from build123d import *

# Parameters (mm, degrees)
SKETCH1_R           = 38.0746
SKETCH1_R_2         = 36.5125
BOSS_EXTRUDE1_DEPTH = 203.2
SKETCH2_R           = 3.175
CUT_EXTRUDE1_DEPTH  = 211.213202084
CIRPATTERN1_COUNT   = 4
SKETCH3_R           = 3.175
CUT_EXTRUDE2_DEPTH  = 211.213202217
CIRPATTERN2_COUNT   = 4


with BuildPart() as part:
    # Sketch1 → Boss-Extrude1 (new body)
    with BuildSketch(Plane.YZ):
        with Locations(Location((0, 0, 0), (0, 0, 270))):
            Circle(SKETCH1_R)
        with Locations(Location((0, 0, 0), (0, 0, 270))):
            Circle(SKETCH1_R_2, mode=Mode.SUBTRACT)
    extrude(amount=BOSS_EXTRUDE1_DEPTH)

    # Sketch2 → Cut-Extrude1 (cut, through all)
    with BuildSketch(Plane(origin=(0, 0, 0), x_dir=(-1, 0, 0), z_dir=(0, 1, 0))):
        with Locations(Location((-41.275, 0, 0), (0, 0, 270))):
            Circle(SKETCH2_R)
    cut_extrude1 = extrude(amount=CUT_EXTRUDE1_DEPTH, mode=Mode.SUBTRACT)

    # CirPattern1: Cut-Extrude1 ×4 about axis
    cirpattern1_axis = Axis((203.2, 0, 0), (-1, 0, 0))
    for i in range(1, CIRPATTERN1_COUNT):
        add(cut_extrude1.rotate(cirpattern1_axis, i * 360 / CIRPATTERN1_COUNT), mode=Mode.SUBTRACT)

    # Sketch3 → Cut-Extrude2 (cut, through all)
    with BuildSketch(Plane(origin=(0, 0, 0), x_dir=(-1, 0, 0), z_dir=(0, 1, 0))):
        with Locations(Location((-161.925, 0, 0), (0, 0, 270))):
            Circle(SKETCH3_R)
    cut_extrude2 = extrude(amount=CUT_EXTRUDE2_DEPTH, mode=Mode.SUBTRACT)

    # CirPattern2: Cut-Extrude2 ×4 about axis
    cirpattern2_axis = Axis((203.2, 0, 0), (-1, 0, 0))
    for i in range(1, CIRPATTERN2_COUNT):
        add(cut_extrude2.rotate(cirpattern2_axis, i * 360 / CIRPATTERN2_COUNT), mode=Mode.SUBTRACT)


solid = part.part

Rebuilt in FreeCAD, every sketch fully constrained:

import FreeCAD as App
import Part
import Sketcher

V = App.Vector
Q = App.Units.Quantity

doc = App.newDocument("Part")
body = doc.addObject("PartDesign::Body", "Body")

sketch1 = doc.addObject("Sketcher::SketchObject", "Sketch")
body.addObject(sketch1)
sketch1.AttachmentSupport = (doc.YZ_Plane, [""])
sketch1.MapMode = "FlatFace"
sketch1.addGeometry(Part.Circle(V(0, 0, 0), V(0, 0, 1), 38), False)
sketch1.addGeometry(Part.Circle(V(0, 0, 0), V(0, 0, 1), 37), False)
sketch1.addConstraint(Sketcher.Constraint("Coincident", 0, 3, -1, 1))
sketch1.addConstraint(Sketcher.Constraint("Coincident", 1, 3, -1, 1))
sketch1.addConstraint(Sketcher.Constraint("Diameter", 0, Q("2.998 in")))
sketch1.addConstraint(Sketcher.Constraint("Diameter", 1, Q("2.875 in")))
pad1 = doc.addObject("PartDesign::Pad", "Pad")
body.addObject(pad1)
pad1.Profile = sketch1
pad1.Length = Q("8 in")

sketch2 = doc.addObject("Sketcher::SketchObject", "Sketch001")
body.addObject(sketch2)
sketch2.AttachmentSupport = (doc.XZ_Plane, [""])
sketch2.MapMode = "FlatFace"
sketch2.addGeometry(Part.Circle(V(41.3, 0, 0), V(0, 0, 1), 3.2), False)
sketch2.addConstraint(Sketcher.Constraint("PointOnObject", 0, 3, -1))
sketch2.addConstraint(Sketcher.Constraint("Diameter", 0, Q("0.25 in")))
sketch2.addConstraint(Sketcher.Constraint("DistanceX", -1, 1, 0, 3, Q("1.625 in")))
pocket1 = doc.addObject("PartDesign::Pocket", "Pocket")
body.addObject(pocket1)
pocket1.Profile = sketch2
pocket1.Type = "ThroughAll"
doc.recompute()

polarpattern = doc.addObject("PartDesign::PolarPattern", "PolarPattern")
body.addObject(polarpattern)
polarpattern.Originals = [pocket1]
polarpattern.Axis = (doc.X_Axis, [""])
polarpattern.Angle = 360
polarpattern.Occurrences = 4
body.Tip = polarpattern

sketch3 = doc.addObject("Sketcher::SketchObject", "Sketch002")
body.addObject(sketch3)
sketch3.AttachmentSupport = (doc.XZ_Plane, [""])
sketch3.MapMode = "FlatFace"
sketch3.addGeometry(Part.Circle(V(161.9, 0, 0), V(0, 0, 1), 3.2), False)
sketch3.addConstraint(Sketcher.Constraint("PointOnObject", 0, 3, -1))
sketch3.addConstraint(Sketcher.Constraint("Diameter", 0, Q("0.25 in")))
sketch3.addConstraint(Sketcher.Constraint("DistanceX", -1, 1, 0, 3, Q("6.375 in")))
pocket2 = doc.addObject("PartDesign::Pocket", "Pocket001")
body.addObject(pocket2)
pocket2.Profile = sketch3
pocket2.Type = "ThroughAll"
doc.recompute()

polarpattern2 = doc.addObject("PartDesign::PolarPattern", "PolarPattern001")
body.addObject(polarpattern2)
polarpattern2.Originals = [pocket2]
polarpattern2.Axis = (doc.X_Axis, [""])
polarpattern2.Angle = 360
polarpattern2.Occurrences = 4
body.Tip = polarpattern2

doc.recompute()
